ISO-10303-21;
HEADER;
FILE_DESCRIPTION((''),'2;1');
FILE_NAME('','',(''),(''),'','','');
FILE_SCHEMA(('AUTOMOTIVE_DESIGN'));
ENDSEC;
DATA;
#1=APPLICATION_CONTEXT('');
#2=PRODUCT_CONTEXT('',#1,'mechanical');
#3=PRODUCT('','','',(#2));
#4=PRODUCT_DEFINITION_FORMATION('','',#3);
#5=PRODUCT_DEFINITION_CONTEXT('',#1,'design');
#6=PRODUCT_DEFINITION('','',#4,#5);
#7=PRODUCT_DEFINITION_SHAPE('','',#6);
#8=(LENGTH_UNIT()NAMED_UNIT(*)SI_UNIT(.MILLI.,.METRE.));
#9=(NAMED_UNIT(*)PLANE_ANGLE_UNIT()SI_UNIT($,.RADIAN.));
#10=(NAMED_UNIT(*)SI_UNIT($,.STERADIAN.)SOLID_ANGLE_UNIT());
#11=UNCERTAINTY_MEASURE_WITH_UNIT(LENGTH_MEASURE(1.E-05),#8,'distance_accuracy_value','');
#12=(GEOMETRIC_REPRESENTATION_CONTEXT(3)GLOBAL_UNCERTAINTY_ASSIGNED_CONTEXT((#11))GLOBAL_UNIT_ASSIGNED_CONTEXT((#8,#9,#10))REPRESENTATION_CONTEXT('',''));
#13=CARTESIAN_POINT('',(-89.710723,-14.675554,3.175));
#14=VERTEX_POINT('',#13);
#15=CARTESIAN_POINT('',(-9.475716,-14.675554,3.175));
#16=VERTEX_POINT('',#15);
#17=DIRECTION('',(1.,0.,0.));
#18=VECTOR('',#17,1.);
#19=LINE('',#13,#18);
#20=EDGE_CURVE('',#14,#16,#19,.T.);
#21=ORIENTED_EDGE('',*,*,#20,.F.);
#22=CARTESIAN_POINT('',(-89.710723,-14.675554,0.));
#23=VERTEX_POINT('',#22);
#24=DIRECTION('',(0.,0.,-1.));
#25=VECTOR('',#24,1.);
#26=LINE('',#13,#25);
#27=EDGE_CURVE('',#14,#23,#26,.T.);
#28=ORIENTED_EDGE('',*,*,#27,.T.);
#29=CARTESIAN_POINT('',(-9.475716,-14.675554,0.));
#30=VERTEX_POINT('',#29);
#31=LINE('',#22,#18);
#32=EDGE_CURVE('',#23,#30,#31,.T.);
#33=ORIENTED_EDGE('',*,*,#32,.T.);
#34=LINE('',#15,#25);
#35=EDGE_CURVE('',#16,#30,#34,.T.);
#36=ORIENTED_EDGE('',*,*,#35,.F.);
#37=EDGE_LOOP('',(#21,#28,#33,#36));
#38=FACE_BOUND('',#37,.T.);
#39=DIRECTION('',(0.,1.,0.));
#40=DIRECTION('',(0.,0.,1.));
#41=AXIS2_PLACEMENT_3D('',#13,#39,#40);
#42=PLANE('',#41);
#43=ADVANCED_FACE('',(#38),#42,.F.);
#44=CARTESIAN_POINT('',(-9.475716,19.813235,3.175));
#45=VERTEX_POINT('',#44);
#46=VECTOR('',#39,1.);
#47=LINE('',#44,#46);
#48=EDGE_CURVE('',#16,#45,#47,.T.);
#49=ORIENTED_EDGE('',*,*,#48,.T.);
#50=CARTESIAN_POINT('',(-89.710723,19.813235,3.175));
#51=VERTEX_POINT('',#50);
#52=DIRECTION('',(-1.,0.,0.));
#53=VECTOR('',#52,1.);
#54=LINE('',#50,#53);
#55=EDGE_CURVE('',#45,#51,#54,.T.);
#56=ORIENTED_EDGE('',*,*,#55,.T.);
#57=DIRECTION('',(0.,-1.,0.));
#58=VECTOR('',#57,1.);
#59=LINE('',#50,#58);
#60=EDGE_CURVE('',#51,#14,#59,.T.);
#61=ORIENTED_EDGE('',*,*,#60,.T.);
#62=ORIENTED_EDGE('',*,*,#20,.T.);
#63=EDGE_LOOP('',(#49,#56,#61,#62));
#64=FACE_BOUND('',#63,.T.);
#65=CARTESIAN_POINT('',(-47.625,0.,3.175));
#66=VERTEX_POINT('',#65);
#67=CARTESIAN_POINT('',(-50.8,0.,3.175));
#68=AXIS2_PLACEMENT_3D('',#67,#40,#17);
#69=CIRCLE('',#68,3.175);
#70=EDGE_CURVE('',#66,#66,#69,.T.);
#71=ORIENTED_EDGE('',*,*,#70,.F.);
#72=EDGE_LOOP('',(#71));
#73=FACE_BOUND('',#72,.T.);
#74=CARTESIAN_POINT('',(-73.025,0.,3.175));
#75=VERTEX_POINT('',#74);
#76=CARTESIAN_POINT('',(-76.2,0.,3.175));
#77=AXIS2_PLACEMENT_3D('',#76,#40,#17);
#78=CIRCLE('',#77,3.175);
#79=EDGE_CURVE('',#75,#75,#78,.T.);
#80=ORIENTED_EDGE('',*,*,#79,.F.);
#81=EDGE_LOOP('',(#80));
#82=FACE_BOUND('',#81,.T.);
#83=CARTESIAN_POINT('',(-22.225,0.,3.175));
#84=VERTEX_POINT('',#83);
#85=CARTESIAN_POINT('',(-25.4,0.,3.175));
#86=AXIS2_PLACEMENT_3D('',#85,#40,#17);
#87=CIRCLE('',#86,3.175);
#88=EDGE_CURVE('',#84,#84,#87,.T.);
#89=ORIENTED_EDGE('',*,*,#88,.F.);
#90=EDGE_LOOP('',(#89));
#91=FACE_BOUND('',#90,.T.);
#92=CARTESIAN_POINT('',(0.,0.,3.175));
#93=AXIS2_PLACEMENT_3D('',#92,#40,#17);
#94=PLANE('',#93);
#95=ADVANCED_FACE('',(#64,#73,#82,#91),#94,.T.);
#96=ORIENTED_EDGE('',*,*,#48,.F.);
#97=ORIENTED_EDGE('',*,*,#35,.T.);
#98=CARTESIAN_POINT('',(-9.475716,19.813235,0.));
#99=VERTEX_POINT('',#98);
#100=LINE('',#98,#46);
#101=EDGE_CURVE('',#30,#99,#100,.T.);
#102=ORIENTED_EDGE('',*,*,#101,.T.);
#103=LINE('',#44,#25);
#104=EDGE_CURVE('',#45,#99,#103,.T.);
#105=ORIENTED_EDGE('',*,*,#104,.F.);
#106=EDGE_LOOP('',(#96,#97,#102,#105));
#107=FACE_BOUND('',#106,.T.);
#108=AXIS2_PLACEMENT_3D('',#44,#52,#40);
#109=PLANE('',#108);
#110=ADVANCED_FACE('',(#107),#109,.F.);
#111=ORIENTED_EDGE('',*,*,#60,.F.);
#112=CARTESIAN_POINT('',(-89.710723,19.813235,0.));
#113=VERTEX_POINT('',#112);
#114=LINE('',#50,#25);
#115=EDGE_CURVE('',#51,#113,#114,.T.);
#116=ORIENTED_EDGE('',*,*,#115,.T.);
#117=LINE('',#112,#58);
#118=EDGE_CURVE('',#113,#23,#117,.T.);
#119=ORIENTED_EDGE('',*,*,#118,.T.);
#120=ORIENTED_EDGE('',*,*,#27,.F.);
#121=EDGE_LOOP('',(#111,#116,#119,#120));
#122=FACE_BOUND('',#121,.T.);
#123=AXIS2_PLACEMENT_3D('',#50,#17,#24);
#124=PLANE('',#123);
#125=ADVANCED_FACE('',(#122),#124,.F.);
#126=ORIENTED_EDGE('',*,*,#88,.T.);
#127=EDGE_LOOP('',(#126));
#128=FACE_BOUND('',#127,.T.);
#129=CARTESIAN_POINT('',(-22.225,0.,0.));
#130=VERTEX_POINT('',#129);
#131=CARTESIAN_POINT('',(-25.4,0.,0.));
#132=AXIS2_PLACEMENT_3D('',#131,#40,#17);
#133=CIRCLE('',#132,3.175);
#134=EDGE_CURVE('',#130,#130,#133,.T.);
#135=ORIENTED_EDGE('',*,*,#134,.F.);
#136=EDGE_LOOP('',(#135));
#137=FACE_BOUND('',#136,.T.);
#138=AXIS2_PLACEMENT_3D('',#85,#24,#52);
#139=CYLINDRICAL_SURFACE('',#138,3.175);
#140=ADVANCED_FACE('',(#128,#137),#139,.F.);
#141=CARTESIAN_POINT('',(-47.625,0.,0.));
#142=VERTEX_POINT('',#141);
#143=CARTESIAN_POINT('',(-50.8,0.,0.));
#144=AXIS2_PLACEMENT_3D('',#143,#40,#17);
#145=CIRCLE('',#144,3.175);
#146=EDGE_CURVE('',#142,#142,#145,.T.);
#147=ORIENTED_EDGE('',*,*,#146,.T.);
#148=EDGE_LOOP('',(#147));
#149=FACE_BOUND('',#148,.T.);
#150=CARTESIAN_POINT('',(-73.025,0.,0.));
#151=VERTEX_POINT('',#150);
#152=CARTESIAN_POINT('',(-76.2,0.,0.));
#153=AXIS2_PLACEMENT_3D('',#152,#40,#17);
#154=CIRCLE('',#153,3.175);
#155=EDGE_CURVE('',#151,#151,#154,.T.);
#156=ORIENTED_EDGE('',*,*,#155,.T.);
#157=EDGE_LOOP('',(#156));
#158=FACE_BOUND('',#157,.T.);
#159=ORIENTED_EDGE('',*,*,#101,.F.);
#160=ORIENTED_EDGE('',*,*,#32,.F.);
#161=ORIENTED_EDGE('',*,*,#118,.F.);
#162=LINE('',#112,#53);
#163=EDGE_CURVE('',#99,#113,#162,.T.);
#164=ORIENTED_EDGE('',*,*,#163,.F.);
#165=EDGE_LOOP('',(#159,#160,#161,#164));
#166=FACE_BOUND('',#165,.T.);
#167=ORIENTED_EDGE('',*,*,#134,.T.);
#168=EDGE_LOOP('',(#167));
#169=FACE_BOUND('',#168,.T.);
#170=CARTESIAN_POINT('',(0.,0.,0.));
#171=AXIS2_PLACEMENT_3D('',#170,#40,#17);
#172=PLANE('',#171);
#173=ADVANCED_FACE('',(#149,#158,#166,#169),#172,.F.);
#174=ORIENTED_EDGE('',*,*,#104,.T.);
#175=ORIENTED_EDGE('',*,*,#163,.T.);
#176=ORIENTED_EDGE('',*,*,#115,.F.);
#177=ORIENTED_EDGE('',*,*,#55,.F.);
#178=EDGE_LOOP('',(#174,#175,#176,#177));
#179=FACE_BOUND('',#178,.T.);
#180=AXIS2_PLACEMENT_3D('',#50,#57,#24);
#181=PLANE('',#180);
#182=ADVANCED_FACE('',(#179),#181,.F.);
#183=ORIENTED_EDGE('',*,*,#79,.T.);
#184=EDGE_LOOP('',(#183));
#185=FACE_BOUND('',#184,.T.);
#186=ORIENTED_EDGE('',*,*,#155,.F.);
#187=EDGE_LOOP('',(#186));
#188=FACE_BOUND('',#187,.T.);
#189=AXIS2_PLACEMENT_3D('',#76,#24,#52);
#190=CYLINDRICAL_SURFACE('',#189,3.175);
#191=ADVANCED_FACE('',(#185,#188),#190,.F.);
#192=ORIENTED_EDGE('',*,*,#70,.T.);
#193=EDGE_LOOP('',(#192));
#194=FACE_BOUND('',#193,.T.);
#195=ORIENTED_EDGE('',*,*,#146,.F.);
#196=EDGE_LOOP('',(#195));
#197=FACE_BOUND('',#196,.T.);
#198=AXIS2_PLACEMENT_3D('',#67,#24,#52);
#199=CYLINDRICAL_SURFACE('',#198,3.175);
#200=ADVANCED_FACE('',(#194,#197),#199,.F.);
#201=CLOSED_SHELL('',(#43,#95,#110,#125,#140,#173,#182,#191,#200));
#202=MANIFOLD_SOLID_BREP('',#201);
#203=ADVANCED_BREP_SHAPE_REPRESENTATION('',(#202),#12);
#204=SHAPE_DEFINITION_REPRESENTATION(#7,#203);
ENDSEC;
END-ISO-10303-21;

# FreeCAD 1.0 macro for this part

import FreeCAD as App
import Part
import Sketcher
from FreeCAD import Vector
Q = App.Units.Quantity

doc = App.newDocument("Part")
body = doc.addObject("PartDesign::Body", "Body")

# Sketch on XY plane
sketch1 = doc.addObject("Sketcher::SketchObject", "Sketch")
body.addObject(sketch1)
sketch1.AttachmentSupport = (doc.XY_Plane, [""])
sketch1.MapMode = "FlatFace"
sketch1.addGeometry([
    Part.LineSegment(Vector(-89.7, 19.8, 0), Vector(-89.7, -14.7, 0)),  # 0
    Part.LineSegment(Vector(-89.7, -14.7, 0), Vector(-9.5, -14.7, 0)),  # 1
    Part.LineSegment(Vector(-9.5, -14.7, 0), Vector(-9.5, 19.8, 0)),  # 2
    Part.LineSegment(Vector(-9.5, 19.8, 0), Vector(-89.7, 19.8, 0)),  # 3
    Part.Circle(Vector(-76.2, 0, 0), Vector(0, 0, 1), 3.2),  # 4
    Part.Circle(Vector(-50.8, 0, 0), Vector(0, 0, 1), 3.2),  # 5
    Part.Circle(Vector(-25.4, 0, 0), Vector(0, 0, 1), 3.2),  # 6
], False)
sketch1.addConstraint([
    Sketcher.Constraint("Coincident", 0, 2, 1, 1),
    Sketcher.Constraint("Coincident", 1, 2, 2, 1),
    Sketcher.Constraint("Coincident", 2, 2, 3, 1),
    Sketcher.Constraint("Coincident", 3, 2, 0, 1),
    Sketcher.Constraint("Vertical", 0),
    Sketcher.Constraint("Horizontal", 1),
    Sketcher.Constraint("Vertical", 2),
    Sketcher.Constraint("Horizontal", 3),
    Sketcher.Constraint("Equal", 4, 5),
    Sketcher.Constraint("Equal", 5, 6),
    Sketcher.Constraint("PointOnObject", 4, 3, -1),
    Sketcher.Constraint("PointOnObject", 5, 3, -1),
    Sketcher.Constraint("PointOnObject", 6, 3, -1),
    Sketcher.Constraint("Diameter", 4, Q("0.25 in")),
    Sketcher.Constraint("DistanceX", 4, 3, -1, 1, Q("3 in")),
    Sketcher.Constraint("DistanceX", 5, 3, -1, 1, Q("2 in")),
    Sketcher.Constraint("DistanceX", 6, 3, -1, 1, Q("1 in")),
    Sketcher.Constraint("DistanceY", 0, 2, 0, 1, Q("34.488789 mm")),
    Sketcher.Constraint("DistanceX", 1, 1, 1, 2, Q("80.235007 mm")),
    Sketcher.Constraint("DistanceX", 0, 2, -1, 1, Q("89.710723 mm")),
    Sketcher.Constraint("DistanceY", 0, 2, -1, 1, Q("14.675554 mm")),
])
pad1 = doc.addObject("PartDesign::Pad", "Pad")
body.addObject(pad1)
pad1.Profile = sketch1
pad1.Length = Q("0.125 in")

doc.recompute()
